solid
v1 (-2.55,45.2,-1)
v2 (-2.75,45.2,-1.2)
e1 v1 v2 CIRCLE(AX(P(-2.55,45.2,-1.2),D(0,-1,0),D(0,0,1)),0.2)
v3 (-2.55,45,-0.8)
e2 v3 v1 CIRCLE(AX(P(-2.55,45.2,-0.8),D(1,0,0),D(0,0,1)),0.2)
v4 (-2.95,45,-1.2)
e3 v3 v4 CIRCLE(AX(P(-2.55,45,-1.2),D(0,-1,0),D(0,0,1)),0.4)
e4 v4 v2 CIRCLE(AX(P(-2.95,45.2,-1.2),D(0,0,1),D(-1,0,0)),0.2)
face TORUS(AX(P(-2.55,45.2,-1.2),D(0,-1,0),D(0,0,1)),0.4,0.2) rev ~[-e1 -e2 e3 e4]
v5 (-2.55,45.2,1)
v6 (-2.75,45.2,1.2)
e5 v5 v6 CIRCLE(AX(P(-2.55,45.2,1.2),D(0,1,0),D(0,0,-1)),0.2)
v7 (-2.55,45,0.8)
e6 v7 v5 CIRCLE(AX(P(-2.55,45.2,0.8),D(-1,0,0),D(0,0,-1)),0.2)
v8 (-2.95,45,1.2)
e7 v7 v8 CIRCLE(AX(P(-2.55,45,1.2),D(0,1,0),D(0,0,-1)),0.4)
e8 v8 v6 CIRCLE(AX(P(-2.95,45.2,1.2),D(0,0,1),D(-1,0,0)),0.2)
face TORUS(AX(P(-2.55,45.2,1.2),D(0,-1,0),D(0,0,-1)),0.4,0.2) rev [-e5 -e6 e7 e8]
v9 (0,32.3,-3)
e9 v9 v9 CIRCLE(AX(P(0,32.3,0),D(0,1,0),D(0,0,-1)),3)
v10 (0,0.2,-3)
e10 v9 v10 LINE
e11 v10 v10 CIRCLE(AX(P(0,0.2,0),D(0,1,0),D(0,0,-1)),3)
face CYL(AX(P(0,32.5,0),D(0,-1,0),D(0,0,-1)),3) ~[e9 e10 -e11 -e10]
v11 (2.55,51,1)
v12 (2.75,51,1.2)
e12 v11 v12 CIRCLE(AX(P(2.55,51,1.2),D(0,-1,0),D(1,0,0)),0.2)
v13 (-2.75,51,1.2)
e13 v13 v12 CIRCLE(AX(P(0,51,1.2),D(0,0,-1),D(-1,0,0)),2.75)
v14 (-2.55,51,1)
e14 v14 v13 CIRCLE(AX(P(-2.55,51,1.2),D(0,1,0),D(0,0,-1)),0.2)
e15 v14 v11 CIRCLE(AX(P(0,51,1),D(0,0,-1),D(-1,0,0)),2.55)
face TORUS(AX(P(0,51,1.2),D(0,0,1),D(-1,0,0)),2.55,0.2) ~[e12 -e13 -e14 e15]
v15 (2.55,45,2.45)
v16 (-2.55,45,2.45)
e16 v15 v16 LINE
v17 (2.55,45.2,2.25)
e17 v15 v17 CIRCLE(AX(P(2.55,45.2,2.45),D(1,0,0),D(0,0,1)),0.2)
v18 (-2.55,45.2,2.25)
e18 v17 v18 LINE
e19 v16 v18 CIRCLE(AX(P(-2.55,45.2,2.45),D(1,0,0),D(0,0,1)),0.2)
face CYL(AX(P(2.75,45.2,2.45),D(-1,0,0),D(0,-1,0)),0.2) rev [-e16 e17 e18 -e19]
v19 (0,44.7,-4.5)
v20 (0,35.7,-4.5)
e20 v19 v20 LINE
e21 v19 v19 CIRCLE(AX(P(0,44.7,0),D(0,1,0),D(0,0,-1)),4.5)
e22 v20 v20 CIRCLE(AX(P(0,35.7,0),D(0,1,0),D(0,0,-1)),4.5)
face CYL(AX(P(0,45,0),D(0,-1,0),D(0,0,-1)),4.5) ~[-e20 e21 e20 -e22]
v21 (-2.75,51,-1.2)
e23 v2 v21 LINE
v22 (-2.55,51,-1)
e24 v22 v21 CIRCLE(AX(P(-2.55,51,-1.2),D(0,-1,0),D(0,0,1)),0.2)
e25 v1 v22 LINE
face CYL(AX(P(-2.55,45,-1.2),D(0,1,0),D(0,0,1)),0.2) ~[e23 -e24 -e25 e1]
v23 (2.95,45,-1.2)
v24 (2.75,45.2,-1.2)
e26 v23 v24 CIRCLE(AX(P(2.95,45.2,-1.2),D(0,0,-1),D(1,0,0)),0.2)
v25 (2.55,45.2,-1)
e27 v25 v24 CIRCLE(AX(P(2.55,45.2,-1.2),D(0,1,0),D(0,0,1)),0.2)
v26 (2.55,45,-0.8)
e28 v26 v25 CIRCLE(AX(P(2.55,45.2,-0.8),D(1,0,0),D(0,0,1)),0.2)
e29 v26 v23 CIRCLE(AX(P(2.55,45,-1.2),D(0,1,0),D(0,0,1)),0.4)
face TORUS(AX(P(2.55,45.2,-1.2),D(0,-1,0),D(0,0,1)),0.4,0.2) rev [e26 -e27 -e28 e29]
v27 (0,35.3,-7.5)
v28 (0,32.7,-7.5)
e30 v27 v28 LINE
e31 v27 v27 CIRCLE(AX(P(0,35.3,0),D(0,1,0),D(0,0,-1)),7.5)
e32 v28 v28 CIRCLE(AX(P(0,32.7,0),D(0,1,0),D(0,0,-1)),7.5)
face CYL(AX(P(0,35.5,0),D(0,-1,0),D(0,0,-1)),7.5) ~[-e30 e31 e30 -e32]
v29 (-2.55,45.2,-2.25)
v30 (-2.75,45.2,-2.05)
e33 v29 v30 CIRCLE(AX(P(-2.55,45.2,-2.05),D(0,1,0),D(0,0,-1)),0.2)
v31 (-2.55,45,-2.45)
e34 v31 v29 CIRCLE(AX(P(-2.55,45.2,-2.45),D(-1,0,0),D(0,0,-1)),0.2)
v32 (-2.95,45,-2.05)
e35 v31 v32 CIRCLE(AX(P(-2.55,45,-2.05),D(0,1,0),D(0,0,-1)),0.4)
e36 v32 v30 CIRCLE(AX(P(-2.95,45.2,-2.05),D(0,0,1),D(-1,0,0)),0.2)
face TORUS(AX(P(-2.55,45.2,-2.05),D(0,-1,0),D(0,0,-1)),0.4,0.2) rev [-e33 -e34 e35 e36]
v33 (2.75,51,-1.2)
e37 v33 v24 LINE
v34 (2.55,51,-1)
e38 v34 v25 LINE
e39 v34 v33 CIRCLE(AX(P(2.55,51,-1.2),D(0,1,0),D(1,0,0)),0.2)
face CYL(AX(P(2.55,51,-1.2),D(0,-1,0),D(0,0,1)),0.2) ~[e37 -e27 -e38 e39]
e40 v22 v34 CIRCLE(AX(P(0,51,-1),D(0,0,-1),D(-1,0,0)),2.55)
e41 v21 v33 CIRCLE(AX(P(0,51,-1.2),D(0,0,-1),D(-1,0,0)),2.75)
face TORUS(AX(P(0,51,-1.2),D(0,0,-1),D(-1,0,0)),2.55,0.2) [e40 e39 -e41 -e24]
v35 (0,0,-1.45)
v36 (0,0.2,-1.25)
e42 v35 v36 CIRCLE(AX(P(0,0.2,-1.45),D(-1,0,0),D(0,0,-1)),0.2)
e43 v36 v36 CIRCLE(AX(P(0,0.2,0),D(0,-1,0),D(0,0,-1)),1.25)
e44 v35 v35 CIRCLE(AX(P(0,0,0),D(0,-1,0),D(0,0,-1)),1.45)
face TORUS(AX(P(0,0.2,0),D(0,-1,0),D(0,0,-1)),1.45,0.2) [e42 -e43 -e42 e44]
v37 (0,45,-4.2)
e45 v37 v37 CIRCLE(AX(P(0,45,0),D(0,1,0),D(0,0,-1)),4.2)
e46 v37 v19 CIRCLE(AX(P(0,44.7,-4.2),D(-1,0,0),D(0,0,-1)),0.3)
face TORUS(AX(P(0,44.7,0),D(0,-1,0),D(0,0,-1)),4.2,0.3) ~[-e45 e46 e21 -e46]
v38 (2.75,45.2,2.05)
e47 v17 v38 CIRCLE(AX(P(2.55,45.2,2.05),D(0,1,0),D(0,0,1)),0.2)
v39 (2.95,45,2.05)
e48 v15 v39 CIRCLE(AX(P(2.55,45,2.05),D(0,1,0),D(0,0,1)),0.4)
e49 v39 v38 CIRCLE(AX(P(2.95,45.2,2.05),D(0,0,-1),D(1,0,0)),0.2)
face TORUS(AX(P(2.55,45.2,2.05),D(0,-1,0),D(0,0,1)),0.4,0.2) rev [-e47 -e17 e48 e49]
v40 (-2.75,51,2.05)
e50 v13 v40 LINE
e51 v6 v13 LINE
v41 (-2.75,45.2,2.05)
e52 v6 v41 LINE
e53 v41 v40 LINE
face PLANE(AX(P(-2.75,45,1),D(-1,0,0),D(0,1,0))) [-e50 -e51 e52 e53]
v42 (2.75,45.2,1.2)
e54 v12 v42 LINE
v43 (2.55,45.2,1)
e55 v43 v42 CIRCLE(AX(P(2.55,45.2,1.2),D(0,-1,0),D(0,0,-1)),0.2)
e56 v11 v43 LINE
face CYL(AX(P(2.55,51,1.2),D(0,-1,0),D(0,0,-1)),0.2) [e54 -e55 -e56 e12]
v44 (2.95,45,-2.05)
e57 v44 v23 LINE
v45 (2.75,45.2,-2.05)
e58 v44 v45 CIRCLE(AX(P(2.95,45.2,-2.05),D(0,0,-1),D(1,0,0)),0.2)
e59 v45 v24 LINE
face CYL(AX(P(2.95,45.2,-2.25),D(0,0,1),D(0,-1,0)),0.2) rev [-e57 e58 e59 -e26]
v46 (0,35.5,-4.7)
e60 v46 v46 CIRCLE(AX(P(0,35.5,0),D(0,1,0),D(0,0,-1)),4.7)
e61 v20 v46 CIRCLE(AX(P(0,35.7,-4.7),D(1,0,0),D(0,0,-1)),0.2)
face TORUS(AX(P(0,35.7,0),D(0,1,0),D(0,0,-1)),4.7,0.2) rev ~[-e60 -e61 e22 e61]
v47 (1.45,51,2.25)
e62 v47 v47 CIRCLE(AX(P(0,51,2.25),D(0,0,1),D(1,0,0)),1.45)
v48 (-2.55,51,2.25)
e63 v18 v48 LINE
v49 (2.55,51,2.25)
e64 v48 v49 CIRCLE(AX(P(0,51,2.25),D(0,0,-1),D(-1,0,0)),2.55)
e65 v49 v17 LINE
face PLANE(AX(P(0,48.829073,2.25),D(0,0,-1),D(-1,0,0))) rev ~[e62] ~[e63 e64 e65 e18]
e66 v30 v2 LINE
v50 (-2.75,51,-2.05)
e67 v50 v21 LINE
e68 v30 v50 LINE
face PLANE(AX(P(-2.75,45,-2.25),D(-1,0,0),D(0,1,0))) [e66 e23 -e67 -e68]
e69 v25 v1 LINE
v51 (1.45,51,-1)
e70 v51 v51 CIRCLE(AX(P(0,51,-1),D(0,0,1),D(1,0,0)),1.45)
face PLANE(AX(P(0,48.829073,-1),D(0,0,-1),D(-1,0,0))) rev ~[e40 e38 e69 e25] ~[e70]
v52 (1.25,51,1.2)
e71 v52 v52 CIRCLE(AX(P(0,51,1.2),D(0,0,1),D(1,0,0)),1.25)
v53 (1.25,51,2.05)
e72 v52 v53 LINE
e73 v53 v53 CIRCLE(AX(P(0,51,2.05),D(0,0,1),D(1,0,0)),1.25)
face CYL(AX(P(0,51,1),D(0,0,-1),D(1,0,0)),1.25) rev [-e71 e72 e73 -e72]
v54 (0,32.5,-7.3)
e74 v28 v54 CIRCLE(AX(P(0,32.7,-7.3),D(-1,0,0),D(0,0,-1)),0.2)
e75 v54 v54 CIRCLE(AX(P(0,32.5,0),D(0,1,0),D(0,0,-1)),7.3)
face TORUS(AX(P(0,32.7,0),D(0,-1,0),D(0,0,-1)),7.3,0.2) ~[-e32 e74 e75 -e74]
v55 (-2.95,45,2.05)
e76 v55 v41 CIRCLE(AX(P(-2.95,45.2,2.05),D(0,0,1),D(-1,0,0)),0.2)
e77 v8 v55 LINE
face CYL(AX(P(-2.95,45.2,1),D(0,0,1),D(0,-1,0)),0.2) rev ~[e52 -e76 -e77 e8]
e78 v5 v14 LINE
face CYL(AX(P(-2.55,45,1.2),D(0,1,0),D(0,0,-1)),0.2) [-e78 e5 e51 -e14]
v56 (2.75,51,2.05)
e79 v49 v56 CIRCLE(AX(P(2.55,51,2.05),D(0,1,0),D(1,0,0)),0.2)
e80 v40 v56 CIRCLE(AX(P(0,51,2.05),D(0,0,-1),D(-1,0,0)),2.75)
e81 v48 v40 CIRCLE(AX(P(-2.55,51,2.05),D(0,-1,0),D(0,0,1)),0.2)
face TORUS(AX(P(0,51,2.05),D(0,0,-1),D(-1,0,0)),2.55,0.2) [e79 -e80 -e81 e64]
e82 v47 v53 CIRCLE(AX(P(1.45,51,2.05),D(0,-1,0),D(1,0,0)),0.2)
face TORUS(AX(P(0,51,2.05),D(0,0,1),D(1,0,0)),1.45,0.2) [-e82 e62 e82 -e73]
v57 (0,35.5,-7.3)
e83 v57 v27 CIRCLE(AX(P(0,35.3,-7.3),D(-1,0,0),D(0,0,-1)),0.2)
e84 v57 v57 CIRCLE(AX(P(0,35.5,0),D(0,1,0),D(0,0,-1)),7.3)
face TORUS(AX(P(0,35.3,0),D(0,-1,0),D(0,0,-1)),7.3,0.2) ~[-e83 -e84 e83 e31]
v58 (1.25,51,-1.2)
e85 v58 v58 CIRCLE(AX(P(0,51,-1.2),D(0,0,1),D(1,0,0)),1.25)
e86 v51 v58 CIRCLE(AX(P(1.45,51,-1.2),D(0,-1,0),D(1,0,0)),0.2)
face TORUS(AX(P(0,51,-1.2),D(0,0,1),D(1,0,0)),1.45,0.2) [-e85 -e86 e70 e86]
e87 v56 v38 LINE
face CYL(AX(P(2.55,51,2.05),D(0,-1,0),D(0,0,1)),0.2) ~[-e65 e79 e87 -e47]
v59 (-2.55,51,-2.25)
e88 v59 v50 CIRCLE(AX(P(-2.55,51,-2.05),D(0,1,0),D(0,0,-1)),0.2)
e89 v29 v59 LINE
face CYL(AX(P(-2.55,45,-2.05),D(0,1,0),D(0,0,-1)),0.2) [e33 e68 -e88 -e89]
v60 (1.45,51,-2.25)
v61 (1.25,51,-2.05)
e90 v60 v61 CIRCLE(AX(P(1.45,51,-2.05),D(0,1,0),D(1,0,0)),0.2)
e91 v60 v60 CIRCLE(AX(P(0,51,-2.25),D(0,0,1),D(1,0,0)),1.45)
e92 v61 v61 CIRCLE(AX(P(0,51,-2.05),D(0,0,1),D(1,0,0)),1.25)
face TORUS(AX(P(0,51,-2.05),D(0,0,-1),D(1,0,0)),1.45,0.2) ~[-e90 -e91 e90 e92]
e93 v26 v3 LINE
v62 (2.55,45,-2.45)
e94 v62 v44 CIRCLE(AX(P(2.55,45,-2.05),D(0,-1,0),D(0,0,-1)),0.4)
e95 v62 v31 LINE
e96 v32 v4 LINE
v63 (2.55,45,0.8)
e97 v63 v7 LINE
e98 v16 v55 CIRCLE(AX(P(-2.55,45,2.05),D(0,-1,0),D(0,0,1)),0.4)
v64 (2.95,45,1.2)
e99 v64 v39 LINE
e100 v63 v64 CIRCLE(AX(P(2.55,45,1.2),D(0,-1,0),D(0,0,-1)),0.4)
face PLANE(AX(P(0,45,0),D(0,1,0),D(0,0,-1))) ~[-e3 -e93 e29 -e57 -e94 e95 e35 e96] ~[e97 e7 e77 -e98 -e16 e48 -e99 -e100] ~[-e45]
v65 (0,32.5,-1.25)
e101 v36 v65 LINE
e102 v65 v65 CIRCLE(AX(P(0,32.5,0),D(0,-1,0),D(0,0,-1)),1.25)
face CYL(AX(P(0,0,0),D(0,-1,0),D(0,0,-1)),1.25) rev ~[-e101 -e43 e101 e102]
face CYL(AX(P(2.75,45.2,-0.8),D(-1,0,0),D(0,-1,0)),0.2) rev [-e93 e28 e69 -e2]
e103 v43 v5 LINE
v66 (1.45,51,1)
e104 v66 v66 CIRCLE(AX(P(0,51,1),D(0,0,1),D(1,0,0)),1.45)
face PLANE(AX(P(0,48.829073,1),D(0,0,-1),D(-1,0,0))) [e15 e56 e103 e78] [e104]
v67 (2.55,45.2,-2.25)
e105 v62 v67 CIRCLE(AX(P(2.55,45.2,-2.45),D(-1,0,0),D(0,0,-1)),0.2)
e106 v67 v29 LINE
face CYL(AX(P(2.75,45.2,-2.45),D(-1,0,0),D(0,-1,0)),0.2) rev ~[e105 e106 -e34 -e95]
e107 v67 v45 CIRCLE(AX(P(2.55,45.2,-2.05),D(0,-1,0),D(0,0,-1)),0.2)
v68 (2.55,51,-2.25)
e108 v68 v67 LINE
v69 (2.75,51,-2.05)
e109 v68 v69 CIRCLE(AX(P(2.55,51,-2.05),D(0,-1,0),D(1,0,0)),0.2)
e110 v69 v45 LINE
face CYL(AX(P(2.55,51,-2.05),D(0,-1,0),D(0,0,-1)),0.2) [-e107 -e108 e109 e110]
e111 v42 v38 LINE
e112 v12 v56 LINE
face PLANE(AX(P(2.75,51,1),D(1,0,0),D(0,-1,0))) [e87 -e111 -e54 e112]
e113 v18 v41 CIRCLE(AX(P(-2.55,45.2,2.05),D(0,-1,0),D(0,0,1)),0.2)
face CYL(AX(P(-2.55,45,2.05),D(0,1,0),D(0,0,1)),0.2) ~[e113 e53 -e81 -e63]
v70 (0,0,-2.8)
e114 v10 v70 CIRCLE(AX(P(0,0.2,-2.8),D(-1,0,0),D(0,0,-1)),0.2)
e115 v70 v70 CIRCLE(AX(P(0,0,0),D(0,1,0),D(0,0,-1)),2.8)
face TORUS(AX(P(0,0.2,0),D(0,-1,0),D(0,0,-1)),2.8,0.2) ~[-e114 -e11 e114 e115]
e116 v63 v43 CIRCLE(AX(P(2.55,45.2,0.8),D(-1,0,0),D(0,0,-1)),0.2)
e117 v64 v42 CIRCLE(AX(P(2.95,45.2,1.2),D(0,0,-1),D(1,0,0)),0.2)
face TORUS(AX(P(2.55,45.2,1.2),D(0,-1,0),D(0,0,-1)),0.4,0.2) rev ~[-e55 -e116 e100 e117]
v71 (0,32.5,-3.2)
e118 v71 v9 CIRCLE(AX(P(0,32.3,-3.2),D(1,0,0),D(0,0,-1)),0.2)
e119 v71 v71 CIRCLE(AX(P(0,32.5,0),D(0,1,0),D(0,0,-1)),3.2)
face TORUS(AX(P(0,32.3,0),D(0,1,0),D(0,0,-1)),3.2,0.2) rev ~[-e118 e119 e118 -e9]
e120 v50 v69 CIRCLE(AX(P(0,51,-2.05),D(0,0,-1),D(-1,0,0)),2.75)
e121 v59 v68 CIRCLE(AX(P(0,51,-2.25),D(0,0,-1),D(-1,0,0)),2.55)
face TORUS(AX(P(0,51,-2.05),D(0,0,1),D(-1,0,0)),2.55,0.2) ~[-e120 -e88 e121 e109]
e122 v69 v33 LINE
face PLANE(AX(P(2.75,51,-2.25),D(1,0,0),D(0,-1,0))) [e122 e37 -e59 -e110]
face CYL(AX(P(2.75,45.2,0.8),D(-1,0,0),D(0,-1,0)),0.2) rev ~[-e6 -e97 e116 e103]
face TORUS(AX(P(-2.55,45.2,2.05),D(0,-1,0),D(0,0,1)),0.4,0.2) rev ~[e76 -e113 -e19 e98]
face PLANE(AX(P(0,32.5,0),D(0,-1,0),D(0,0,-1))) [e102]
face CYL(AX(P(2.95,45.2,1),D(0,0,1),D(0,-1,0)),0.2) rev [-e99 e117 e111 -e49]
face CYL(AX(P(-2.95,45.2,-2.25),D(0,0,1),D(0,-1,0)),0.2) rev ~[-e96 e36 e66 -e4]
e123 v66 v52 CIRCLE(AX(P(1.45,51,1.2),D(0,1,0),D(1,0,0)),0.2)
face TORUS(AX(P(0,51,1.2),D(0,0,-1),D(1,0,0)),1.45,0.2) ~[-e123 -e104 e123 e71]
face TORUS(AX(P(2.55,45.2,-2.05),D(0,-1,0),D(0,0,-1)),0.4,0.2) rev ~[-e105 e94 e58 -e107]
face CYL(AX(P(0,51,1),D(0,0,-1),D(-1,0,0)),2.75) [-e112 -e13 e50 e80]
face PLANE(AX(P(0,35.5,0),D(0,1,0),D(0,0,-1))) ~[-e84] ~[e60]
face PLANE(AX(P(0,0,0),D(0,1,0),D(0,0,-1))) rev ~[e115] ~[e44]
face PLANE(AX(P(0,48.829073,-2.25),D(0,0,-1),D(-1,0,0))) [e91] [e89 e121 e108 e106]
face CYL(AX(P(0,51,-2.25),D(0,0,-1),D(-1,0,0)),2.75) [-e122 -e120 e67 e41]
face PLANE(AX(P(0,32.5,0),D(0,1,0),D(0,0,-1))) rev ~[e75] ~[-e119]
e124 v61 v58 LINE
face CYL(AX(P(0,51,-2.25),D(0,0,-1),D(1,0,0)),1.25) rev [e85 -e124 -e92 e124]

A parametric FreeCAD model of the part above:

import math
import FreeCAD as App
import Part
import Sketcher
from FreeCAD import Vector


def edges_at(feature, points):
    """Names of the edges that pass closest to the given points."""
    edges = feature.Shape.Edges
    near = lambda p: min(range(len(edges)), key=lambda i: edges[i].distToShape(Part.Vertex(*p))[0])
    return sorted({f"Edge{near(p) + 1}" for p in points})

doc = App.newDocument("Part")
body = doc.addObject("PartDesign::Body", "Body")

# Sketch on XY plane
sketch1 = body.newObject("Sketcher::SketchObject", "Sketch")
sketch1.AttachmentSupport = (doc.getObject("XY_Plane"), [""])
sketch1.MapMode = "FlatFace"
sketch1.addGeometry(Part.LineSegment(Vector(0, 0, 0), Vector(0, 45, 0)), False)
sketch1.addGeometry(Part.LineSegment(Vector(0, 45, 0), Vector(-4.5, 45, 0)), False)
sketch1.addGeometry(Part.LineSegment(Vector(-4.5, 45, 0), Vector(-4.5, 35.5, 0)), False)
sketch1.addGeometry(Part.LineSegment(Vector(-4.5, 35.5, 0), Vector(-7.5, 35.5, 0)), False)
sketch1.addGeometry(Part.LineSegment(Vector(-7.5, 35.5, 0), Vector(-7.5, 32.5, 0)), False)
sketch1.addGeometry(Part.LineSegment(Vector(-7.5, 32.5, 0), Vector(-3, 32.5, 0)), False)
sketch1.addGeometry(Part.LineSegment(Vector(-3, 32.5, 0), Vector(-3, 0, 0)), False)
sketch1.addGeometry(Part.LineSegment(Vector(-3, 0, 0), Vector(0, 0, 0)), False)
sketch1.addConstraint(Sketcher.Constraint("Coincident", 0, 2, 1, 1))
sketch1.addConstraint(Sketcher.Constraint("Coincident", 1, 2, 2, 1))
sketch1.addConstraint(Sketcher.Constraint("Coincident", 2, 2, 3, 1))
sketch1.addConstraint(Sketcher.Constraint("Coincident", 3, 2, 4, 1))
sketch1.addConstraint(Sketcher.Constraint("Coincident", 4, 2, 5, 1))
sketch1.addConstraint(Sketcher.Constraint("Coincident", 5, 2, 6, 1))
sketch1.addConstraint(Sketcher.Constraint("Coincident", 6, 2, 7, 1))
sketch1.addConstraint(Sketcher.Constraint("Coincident", 7, 2, 0, 1))
sketch1.addConstraint(Sketcher.Constraint("Vertical", 0))
sketch1.addConstraint(Sketcher.Constraint("Horizontal", 1))
sketch1.addConstraint(Sketcher.Constraint("Vertical", 2))
sketch1.addConstraint(Sketcher.Constraint("Horizontal", 3))
sketch1.addConstraint(Sketcher.Constraint("Vertical", 4))
sketch1.addConstraint(Sketcher.Constraint("Horizontal", 5))
sketch1.addConstraint(Sketcher.Constraint("Vertical", 6))
sketch1.addConstraint(Sketcher.Constraint("Horizontal", 7))
sketch1.addConstraint(Sketcher.Constraint("Coincident", 7, 2, -1, 1))
sketch1.addConstraint(Sketcher.Constraint("Equal", 1, 5))
sketch1.addConstraint(Sketcher.Constraint("Equal", 7, 4))
sketch1.addConstraint(Sketcher.Constraint("DistanceX", 3, 2, 3, 1, 3.0))
sketch1.addConstraint(Sketcher.Constraint("DistanceY", 0, 1, 0, 2, 45.0))
sketch1.addConstraint(Sketcher.Constraint("DistanceX", 1, 2, 1, 1, 4.5))
sketch1.addConstraint(Sketcher.Constraint("DistanceY", 2, 2, 2, 1, 9.5))
revolution = body.newObject("PartDesign::Revolution", "Revolution")
revolution.Profile = sketch1
revolution.ReferenceAxis = (sketch1, ["V_Axis"])
revolution.Angle = 360

# Sketch on XY plane
sketch2 = body.newObject("Sketcher::SketchObject", "Sketch001")
sketch2.AttachmentSupport = (doc.getObject("XY_Plane"), [""])
sketch2.MapMode = "FlatFace"
sketch2.AttachmentOffset = App.Placement(Vector(0, 0, 1), App.Rotation())
sketch2.addGeometry(Part.LineSegment(Vector(2.75, 45, 0), Vector(2.75, 51, 0)), False)
sketch2.addGeometry(Part.ArcOfCircle(Part.Circle(Vector(0, 51, 0), Vector(0, 0, 1), 2.75), math.radians(0), math.radians(180)), False)
sketch2.addGeometry(Part.LineSegment(Vector(-2.75, 51, 0), Vector(-2.75, 45, 0)), False)
sketch2.addGeometry(Part.LineSegment(Vector(-2.75, 45, 0), Vector(2.75, 45, 0)), False)
sketch2.addGeometry(Part.Circle(Vector(0, 51, 0), Vector(0, 0, 1), 1.25), False)
sketch2.addConstraint(Sketcher.Constraint("Tangent", 0, 2, 1, 1))
sketch2.addConstraint(Sketcher.Constraint("Tangent", 1, 2, 2, 1))
sketch2.addConstraint(Sketcher.Constraint("Coincident", 2, 2, 3, 1))
sketch2.addConstraint(Sketcher.Constraint("Coincident", 3, 2, 0, 1))
sketch2.addConstraint(Sketcher.Constraint("Vertical", 0))
sketch2.addConstraint(Sketcher.Constraint("Vertical", 2))
sketch2.addConstraint(Sketcher.Constraint("Horizontal", 3))
sketch2.addConstraint(Sketcher.Constraint("Coincident", 4, 3, 1, 3))
sketch2.addConstraint(Sketcher.Constraint("PointOnObject", 1, 3, -2))
sketch2.addConstraint(Sketcher.Constraint("Diameter", 4, 2.5))
sketch2.addConstraint(Sketcher.Constraint("DistanceY", 0, 1, 0, 2, 6.0))
sketch2.addConstraint(Sketcher.Constraint("Radius", 1, 2.75))
sketch2.addConstraint(Sketcher.Constraint("DistanceY", -1, 1, 1, 3, 51.0))
pad1 = body.newObject("PartDesign::Pad", "Pad")
pad1.Profile = sketch2
pad1.Length = 1.25

# Sketch on XY plane
sketch3 = body.newObject("Sketcher::SketchObject", "Sketch002")
sketch3.AttachmentSupport = (doc.getObject("XY_Plane"), [""])
sketch3.MapMode = "FlatFace"
sketch3.AttachmentOffset = App.Placement(Vector(0, 0, -2.25), App.Rotation())
sketch3.addGeometry(Part.LineSegment(Vector(2.75, 45, 0), Vector(2.75, 51, 0)), False)
sketch3.addGeometry(Part.ArcOfCircle(Part.Circle(Vector(0, 51, 0), Vector(0, 0, 1), 2.75), math.radians(0), math.radians(180)), False)
sketch3.addGeometry(Part.LineSegment(Vector(-2.75, 51, 0), Vector(-2.75, 45, 0)), False)
sketch3.addGeometry(Part.LineSegment(Vector(-2.75, 45, 0), Vector(2.75, 45, 0)), False)
sketch3.addGeometry(Part.Circle(Vector(0, 51, 0), Vector(0, 0, 1), 1.25), False)
sketch3.addConstraint(Sketcher.Constraint("Tangent", 0, 2, 1, 1))
sketch3.addConstraint(Sketcher.Constraint("Tangent", 1, 2, 2, 1))
sketch3.addConstraint(Sketcher.Constraint("Coincident", 2, 2, 3, 1))
sketch3.addConstraint(Sketcher.Constraint("Coincident", 3, 2, 0, 1))
sketch3.addConstraint(Sketcher.Constraint("Vertical", 0))
sketch3.addConstraint(Sketcher.Constraint("Vertical", 2))
sketch3.addConstraint(Sketcher.Constraint("Horizontal", 3))
sketch3.addConstraint(Sketcher.Constraint("Coincident", 4, 3, 1, 3))
sketch3.addConstraint(Sketcher.Constraint("PointOnObject", 1, 3, -2))
sketch3.addConstraint(Sketcher.Constraint("Diameter", 4, 2.5))
sketch3.addConstraint(Sketcher.Constraint("DistanceY", 0, 1, 0, 2, 6.0))
sketch3.addConstraint(Sketcher.Constraint("Radius", 1, 2.75))
sketch3.addConstraint(Sketcher.Constraint("DistanceY", -1, 1, 1, 3, 51.0))
pad2 = body.newObject("PartDesign::Pad", "Pad001")
pad2.Profile = sketch3
pad2.Length = 1.25
doc.recompute()

fillet = body.newObject("PartDesign::Fillet", "Fillet")
fillet.Base = (pad2, edges_at(pad2, [(0, 45, 4.5)]))
fillet.Radius = 0.3

# Sketch on XZ plane
sketch4 = body.newObject("Sketcher::SketchObject", "Sketch003")
sketch4.AttachmentSupport = (doc.getObject("XZ_Plane"), [""])
sketch4.MapMode = "FlatFace"
sketch4.addGeometry(Part.Circle(Vector(0, 0, 0), Vector(0, 0, 1), 1.25), False)
sketch4.addConstraint(Sketcher.Constraint("Coincident", 0, 3, -1, 1))
sketch4.addConstraint(Sketcher.Constraint("Diameter", 0, 2.5))
pocket1 = body.newObject("PartDesign::Pocket", "Pocket")
pocket1.Profile = sketch4
pocket1.Length = 32.5
doc.recompute()

fillet2 = body.newObject("PartDesign::Fillet", "Fillet001")
fillet2.Base = (pocket1, edges_at(pocket1, [
    (0, 53.75, 2.25),
    (-2.75, 48, 2.25),
    (0, 45, 2.25),
    (2.75, 48, 2.25),
    (-1.25, 51, 1),
    (0, 53.75, 1),
    (-2.75, 48, 1),
    (0, 45, 1),
    (-2.75, 45, 1.625),
    (2.75, 48, 1),
    (2.75, 45, 1.625),
    (-1.25, 51, 2.25),
    (0, 53.75, -2.25),
    (2.75, 48, -2.25),
    (0, 45, -2.25),
    (2.75, 45, -1.625),
    (-2.75, 48, -2.25),
    (-2.75, 45, -1.625),
    (-1.25, 51, -2.25),
    (0, 53.75, -1),
    (-2.75, 48, -1),
    (0, 45, -1),
    (2.75, 48, -1),
    (-1.25, 51, -1),
]))
fillet2.Radius = 0.2
doc.recompute()

fillet3 = body.newObject("PartDesign::Fillet", "Fillet002")
fillet3.Base = (fillet2, edges_at(fillet2, [
    (0, 0, 1.25),
    (0, 0, 3),
    (0, 32.5, 3),
    (0, 32.5, 7.5),
    (0, 35.5, 7.5),
    (0, 35.5, 4.5),
]))
fillet3.Radius = 0.2

doc.recompute()
